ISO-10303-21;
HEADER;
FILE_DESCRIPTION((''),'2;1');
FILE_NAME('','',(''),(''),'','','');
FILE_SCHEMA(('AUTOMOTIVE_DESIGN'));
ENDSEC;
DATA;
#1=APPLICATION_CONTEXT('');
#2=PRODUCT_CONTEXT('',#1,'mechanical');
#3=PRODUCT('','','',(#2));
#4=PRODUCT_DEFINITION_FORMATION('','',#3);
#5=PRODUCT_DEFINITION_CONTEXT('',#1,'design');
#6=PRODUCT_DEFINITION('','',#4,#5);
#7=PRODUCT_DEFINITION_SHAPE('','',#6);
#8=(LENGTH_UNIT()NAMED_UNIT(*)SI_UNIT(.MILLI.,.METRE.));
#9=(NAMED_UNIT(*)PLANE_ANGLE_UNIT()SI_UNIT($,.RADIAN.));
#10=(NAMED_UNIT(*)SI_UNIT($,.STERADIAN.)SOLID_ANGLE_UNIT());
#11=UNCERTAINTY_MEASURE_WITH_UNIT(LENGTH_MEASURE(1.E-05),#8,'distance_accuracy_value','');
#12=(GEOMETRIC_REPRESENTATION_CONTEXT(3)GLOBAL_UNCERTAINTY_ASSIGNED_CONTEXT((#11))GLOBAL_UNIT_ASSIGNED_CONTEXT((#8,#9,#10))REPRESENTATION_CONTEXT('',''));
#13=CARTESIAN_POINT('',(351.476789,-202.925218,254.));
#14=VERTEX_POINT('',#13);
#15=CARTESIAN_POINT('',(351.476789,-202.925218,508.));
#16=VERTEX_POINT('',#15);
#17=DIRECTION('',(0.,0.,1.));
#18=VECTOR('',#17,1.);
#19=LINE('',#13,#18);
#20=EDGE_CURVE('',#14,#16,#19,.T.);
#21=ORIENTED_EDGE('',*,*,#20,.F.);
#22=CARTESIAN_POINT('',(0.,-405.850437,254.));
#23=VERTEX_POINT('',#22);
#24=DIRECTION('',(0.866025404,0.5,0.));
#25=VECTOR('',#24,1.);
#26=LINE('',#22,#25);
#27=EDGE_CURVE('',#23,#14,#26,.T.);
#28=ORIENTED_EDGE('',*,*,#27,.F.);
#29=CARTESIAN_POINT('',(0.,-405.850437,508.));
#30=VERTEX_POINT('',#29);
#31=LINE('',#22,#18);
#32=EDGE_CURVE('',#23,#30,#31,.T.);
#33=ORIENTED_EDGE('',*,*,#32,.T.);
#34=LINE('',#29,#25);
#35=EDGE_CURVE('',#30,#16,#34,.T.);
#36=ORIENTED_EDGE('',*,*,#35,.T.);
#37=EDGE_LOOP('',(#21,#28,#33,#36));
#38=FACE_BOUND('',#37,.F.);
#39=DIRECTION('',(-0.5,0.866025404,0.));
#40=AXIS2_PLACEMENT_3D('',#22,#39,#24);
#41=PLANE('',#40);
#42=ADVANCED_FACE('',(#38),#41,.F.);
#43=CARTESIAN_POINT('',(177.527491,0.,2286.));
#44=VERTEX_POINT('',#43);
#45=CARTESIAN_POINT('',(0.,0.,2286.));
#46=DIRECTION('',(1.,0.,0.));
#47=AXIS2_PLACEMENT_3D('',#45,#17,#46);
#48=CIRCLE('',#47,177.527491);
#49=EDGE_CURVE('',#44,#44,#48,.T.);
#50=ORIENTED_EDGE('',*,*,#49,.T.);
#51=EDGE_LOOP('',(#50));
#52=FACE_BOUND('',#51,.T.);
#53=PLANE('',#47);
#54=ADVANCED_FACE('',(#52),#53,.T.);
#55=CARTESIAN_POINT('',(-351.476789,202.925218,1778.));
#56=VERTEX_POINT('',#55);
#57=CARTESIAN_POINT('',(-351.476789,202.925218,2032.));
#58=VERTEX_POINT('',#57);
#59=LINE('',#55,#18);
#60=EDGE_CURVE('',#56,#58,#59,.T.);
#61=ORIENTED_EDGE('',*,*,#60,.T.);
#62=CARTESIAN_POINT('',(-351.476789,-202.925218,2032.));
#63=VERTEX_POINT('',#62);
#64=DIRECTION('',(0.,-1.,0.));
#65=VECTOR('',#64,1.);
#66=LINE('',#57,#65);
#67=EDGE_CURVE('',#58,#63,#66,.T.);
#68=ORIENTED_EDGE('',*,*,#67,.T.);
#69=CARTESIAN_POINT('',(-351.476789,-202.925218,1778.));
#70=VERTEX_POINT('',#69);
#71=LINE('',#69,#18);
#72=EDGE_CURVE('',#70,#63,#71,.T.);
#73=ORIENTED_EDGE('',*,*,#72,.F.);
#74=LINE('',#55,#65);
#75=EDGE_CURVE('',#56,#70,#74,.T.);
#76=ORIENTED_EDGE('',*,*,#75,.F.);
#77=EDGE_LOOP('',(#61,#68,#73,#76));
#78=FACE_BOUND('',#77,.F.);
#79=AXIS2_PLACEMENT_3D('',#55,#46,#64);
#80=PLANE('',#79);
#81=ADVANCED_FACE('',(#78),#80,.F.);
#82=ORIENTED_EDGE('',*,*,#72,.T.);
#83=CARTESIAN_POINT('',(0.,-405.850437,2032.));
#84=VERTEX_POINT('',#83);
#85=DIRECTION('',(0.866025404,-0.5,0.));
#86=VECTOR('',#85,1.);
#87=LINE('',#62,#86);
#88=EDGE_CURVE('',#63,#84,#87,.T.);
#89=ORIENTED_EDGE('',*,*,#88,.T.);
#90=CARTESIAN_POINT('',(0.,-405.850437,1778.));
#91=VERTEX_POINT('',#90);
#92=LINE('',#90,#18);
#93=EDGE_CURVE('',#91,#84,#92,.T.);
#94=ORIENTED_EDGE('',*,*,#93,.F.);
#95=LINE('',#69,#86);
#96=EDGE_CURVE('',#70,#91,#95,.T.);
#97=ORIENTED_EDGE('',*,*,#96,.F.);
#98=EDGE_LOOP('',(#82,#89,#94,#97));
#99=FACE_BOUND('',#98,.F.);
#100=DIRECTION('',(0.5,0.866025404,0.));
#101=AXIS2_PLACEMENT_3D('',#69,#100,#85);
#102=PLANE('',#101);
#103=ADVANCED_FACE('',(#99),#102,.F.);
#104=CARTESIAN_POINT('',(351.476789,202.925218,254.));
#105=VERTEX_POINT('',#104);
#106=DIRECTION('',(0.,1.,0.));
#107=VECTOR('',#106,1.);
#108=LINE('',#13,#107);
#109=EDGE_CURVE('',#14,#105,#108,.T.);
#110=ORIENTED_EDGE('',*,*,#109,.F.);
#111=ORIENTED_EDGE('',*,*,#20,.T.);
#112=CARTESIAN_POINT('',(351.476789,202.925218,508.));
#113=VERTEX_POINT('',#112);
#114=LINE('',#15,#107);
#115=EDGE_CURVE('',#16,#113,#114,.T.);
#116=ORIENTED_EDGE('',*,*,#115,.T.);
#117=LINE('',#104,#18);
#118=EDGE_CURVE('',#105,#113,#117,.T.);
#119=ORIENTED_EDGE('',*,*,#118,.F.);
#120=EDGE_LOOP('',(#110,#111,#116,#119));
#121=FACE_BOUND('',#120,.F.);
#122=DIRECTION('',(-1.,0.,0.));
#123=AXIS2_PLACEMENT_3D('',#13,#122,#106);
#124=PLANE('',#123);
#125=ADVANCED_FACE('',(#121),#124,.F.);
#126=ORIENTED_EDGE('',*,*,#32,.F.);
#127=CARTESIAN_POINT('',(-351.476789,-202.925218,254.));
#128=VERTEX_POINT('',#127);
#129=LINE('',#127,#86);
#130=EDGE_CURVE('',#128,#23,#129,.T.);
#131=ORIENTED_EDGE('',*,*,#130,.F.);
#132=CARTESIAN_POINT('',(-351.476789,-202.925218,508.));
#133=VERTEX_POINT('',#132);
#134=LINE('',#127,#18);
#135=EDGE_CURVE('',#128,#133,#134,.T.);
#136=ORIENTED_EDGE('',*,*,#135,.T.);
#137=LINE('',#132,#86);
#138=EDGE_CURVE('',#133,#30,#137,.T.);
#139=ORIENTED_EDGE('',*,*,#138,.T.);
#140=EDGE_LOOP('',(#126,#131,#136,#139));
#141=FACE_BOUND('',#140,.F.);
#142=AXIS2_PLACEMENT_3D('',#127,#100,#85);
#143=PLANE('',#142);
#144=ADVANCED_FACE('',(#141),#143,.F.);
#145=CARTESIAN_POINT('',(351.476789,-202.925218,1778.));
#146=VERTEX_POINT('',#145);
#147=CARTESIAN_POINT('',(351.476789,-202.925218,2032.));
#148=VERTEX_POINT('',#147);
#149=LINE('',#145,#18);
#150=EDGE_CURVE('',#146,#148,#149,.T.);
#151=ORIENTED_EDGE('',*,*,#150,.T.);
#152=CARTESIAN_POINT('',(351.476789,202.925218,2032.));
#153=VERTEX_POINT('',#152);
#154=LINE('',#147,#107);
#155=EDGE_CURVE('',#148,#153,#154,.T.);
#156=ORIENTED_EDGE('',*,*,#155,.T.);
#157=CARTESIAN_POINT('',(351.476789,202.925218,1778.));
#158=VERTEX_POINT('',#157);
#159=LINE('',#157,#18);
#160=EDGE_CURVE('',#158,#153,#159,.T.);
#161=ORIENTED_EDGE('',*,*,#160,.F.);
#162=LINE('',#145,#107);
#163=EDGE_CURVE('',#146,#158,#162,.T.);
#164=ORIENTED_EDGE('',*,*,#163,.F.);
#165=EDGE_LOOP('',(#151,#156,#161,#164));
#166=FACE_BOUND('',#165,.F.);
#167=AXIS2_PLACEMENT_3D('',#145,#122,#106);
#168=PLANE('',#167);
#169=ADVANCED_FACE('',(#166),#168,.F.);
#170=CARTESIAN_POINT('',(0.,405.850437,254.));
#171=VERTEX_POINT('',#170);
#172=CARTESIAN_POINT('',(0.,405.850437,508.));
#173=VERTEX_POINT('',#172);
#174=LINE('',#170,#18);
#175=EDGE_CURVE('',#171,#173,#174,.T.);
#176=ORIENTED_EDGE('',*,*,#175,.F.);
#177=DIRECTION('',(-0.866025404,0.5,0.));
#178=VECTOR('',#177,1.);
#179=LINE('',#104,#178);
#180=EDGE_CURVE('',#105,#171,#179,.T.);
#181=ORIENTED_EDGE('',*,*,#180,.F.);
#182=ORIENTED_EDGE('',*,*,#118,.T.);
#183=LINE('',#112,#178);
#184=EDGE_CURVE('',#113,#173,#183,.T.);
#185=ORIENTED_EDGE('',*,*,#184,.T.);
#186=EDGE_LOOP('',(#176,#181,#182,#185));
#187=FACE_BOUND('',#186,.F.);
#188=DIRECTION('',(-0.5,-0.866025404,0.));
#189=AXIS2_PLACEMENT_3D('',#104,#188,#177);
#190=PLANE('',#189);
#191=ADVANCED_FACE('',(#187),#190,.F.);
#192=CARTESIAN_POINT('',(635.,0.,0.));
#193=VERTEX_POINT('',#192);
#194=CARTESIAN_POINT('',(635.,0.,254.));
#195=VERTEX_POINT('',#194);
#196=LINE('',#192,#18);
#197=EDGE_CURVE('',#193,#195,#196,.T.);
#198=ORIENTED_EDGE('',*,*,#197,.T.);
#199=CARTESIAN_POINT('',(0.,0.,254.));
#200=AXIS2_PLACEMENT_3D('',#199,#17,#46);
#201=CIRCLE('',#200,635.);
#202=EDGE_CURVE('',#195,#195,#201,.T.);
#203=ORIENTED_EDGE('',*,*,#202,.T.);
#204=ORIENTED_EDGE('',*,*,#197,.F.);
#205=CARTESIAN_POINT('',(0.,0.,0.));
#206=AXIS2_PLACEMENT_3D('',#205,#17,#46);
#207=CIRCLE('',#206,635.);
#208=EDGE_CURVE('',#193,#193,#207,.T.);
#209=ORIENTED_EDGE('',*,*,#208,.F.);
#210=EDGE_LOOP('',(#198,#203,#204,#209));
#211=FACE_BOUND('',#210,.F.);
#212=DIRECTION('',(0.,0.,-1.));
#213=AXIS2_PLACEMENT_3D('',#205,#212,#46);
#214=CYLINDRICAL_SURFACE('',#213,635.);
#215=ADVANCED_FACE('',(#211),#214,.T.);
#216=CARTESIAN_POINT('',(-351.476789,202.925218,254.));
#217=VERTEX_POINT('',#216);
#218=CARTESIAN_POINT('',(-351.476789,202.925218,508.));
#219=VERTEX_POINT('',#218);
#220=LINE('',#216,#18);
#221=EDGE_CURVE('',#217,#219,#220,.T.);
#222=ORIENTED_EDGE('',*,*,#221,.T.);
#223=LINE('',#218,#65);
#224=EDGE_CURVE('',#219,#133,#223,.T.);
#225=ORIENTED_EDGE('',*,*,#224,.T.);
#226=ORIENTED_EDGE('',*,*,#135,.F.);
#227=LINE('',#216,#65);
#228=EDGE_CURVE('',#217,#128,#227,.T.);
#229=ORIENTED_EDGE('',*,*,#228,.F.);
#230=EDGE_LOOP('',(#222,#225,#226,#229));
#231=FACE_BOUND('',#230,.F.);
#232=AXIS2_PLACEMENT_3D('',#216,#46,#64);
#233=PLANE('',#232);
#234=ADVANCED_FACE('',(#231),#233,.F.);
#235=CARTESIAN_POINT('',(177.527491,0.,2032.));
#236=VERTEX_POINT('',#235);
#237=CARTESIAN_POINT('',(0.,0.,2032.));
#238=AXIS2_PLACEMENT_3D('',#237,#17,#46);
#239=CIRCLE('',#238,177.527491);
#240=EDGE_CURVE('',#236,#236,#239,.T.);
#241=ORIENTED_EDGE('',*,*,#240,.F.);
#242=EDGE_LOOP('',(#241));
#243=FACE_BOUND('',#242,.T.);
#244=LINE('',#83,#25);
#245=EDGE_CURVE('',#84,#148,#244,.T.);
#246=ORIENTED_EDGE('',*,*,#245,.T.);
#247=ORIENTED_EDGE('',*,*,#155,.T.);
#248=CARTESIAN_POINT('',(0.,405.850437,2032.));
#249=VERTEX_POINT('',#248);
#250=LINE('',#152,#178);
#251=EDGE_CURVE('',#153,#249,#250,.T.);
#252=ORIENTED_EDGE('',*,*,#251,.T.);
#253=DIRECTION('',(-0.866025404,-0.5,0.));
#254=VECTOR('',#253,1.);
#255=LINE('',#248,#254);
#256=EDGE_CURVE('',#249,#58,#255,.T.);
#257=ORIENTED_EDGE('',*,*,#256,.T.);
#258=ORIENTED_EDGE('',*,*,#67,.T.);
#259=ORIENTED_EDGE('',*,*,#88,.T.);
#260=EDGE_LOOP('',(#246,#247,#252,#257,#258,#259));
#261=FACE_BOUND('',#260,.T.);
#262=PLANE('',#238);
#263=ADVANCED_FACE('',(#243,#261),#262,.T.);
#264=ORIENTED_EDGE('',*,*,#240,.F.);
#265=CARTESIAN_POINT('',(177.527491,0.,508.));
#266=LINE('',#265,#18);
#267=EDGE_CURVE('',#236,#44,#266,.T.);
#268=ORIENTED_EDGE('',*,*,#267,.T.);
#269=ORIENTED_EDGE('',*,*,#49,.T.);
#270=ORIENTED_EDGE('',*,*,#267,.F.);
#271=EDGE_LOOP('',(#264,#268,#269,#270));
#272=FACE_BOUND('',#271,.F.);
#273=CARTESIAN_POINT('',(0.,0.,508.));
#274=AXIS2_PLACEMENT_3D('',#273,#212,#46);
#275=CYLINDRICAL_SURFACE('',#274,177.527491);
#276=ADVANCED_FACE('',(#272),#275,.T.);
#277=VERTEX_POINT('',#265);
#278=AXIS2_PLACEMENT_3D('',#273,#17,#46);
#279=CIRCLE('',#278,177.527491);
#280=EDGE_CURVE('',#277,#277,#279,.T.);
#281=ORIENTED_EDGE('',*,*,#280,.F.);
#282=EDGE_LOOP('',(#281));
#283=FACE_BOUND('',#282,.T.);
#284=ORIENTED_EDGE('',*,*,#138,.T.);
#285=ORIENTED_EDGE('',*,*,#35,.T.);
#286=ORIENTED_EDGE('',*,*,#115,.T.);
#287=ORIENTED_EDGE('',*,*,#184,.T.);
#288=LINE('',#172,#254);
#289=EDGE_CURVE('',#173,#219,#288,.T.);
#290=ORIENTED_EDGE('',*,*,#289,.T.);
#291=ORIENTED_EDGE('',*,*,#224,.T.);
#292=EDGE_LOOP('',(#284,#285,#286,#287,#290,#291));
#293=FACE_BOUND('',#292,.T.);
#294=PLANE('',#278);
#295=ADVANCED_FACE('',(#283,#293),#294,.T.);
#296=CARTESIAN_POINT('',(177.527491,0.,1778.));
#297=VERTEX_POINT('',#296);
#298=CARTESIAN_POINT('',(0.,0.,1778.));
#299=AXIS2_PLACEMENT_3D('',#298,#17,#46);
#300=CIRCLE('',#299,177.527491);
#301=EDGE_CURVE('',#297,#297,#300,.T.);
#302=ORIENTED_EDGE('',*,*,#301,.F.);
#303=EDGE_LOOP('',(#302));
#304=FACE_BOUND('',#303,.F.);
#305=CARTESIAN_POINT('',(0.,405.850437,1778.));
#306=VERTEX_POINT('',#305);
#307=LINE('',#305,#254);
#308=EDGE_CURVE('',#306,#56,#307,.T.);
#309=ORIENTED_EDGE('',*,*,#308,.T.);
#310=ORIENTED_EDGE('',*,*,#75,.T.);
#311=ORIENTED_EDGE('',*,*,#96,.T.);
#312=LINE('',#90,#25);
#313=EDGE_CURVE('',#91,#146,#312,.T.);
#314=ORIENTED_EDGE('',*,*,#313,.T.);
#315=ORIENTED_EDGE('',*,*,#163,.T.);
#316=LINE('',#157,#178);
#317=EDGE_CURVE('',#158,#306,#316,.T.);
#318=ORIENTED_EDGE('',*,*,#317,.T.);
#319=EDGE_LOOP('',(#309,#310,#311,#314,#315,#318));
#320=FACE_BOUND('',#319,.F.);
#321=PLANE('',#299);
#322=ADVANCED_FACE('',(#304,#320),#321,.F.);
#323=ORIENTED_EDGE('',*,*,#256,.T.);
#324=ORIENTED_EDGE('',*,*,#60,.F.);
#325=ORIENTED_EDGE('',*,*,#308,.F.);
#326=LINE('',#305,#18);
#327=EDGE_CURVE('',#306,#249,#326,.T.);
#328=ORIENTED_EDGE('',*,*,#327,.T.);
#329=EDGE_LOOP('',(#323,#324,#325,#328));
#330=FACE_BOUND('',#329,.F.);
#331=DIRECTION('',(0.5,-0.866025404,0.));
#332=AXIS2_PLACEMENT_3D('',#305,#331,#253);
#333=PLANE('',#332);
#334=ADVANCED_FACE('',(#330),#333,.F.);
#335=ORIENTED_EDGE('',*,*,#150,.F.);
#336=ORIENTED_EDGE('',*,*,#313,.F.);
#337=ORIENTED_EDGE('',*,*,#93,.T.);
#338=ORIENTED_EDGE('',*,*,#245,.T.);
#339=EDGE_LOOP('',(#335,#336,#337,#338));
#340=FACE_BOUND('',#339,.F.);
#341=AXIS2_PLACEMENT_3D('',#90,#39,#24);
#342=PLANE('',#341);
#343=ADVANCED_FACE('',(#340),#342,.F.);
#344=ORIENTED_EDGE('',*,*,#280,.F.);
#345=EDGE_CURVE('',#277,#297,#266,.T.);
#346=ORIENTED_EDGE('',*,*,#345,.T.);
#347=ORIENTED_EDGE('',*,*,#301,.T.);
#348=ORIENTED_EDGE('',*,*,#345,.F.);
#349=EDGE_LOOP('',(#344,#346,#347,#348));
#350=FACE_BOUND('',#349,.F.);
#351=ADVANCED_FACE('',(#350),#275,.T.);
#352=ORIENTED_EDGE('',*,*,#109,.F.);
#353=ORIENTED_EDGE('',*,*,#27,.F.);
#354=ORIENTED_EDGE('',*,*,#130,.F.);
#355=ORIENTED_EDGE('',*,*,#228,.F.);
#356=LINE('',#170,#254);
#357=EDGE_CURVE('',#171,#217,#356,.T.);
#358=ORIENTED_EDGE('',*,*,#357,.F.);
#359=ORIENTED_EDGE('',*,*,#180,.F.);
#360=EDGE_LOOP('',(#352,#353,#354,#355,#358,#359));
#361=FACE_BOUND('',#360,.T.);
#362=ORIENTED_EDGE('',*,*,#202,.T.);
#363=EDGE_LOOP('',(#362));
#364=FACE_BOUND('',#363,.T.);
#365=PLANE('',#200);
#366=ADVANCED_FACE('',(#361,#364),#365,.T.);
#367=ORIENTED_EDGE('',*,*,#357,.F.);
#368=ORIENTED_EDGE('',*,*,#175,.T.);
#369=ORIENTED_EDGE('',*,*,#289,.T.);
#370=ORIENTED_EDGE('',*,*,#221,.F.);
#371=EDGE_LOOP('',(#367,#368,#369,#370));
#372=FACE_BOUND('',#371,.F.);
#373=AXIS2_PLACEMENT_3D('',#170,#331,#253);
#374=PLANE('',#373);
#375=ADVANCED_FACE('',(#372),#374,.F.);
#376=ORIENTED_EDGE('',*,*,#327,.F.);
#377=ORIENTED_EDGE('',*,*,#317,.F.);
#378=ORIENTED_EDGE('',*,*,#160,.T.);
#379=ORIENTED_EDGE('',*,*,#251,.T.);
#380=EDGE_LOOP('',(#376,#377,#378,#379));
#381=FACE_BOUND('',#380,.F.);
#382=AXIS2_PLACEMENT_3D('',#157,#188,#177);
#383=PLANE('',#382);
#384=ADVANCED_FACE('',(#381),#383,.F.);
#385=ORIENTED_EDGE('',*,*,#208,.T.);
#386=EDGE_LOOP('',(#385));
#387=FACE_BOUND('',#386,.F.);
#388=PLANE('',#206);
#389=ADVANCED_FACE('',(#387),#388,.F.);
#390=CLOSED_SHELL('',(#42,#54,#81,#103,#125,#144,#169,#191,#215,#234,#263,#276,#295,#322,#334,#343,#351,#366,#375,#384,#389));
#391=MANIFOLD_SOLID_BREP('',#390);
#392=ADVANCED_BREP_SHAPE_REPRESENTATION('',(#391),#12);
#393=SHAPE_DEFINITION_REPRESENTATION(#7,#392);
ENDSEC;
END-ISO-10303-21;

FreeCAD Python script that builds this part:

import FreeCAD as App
import Part
import Sketcher
from FreeCAD import Vector
Q = App.Units.Quantity


def add_polygon(sketch, points):
    """Adds a closed chain of lines whose ends are joined by coincident constraints."""
    first, n = sketch.GeometryCount, len(points)
    for a, b in zip(points, points[1:] + points[:1]):
        sketch.addGeometry(Part.LineSegment(App.Vector(*a, 0), App.Vector(*b, 0)), False)
    for i in range(n):
        sketch.addConstraint(Sketcher.Constraint("Coincident", first + i, 2, first + (i + 1) % n, 1))

doc = App.newDocument("Part")
params = doc.addObject("Spreadsheet::Sheet", "Params")
for row, (alias, value) in enumerate([
    ("sketch1_diameter", "50 in"),
    ("pad1_length", "10 in"),
    ("pad2_length", "10 in"),
    ("pad3_length", "70 in"),
    ("pad4_length", "10 in"),
], start=1):
    params.set(f"A{row}", alias)
    params.set(f"B{row}", "=" + value)
    params.setAlias(f"B{row}", alias)

body = doc.addObject("PartDesign::Body", "Body")

sketch1 = doc.addObject("Sketcher::SketchObject", "Sketch")
body.addObject(sketch1)
sketch1.AttachmentSupport = (doc.XY_Plane, [""])
sketch1.MapMode = "FlatFace"
sketch1.addGeometry(Part.Circle(Vector(0, 0, 0), Vector(0, 0, 1), 635), False)
sketch1.addConstraint([
    Sketcher.Constraint("Coincident", 0, 3, -1, 1),
    Sketcher.Constraint("Diameter", 0, Q("50 in")),
])
sketch1.setExpression("Constraints[1]", "Params.sketch1_diameter")
pad1 = doc.addObject("PartDesign::Pad", "Pad")
body.addObject(pad1)
pad1.Profile = sketch1
pad1.setExpression("Length", "Params.pad1_length")

sketch2 = doc.addObject("Sketcher::SketchObject", "Sketch001")
body.addObject(sketch2)
sketch2.AttachmentSupport = (doc.XY_Plane, [""])
sketch2.MapMode = "FlatFace"
sketch2.AttachmentOffset = App.Placement(Vector(0, 0, 10 * 25.4), App.Rotation())
add_polygon(sketch2, [(351, -203), (351, 203), (0, 406), (-351, 203), (-351, -203), (0, -406)])
sketch2.addConstraint([
    Sketcher.Constraint("Vertical", 0),
    Sketcher.Constraint("Vertical", 3),
    Sketcher.Constraint("Symmetric", 0, 2, 3, 2, -1, 1),
    Sketcher.Constraint("Symmetric", 1, 2, 4, 2, -1, 1),
    Sketcher.Constraint("PointOnObject", 1, 2, -2),
    Sketcher.Constraint("Parallel", 2, 5),
    Sketcher.Constraint("Horizontal", 0, 2, 2, 2),
    Sketcher.Constraint("Angle", 1, Q("150 deg")),
    Sketcher.Constraint("DistanceY", 0, 1, 0, 2, Q("405.850437 mm")),
    Sketcher.Constraint("DistanceX", -1, 1, 0, 2, Q("351.476789 mm")),
])
pad2 = doc.addObject("PartDesign::Pad", "Pad001")
body.addObject(pad2)
pad2.Profile = sketch2
pad2.setExpression("Length", "Params.pad2_length")

sketch3 = doc.addObject("Sketcher::SketchObject", "Sketch002")
body.addObject(sketch3)
sketch3.AttachmentSupport = (doc.XY_Plane, [""])
sketch3.MapMode = "FlatFace"
sketch3.AttachmentOffset = App.Placement(Vector(0, 0, 20 * 25.4), App.Rotation())
sketch3.addGeometry(Part.Circle(Vector(0, 0, 0), Vector(0, 0, 1), 178), False)
sketch3.addConstraint([
    Sketcher.Constraint("Coincident", 0, 3, -1, 1),
    Sketcher.Constraint("Diameter", 0, Q("355.054983 mm")),
])
pad3 = doc.addObject("PartDesign::Pad", "Pad002")
body.addObject(pad3)
pad3.Profile = sketch3
pad3.setExpression("Length", "Params.pad3_length")

sketch4 = doc.addObject("Sketcher::SketchObject", "Sketch003")
body.addObject(sketch4)
sketch4.AttachmentSupport = (doc.XY_Plane, [""])
sketch4.MapMode = "FlatFace"
sketch4.AttachmentOffset = App.Placement(Vector(0, 0, 70 * 25.4), App.Rotation())
add_polygon(sketch4, [(0, -406), (351, -203), (351, 203), (0, 406), (-351, 203), (-351, -203)])
sketch4.addGeometry(Part.Circle(Vector(0, 0, 0), Vector(0, 0, 1), 178), False)
sketch4.addConstraint([
    Sketcher.Constraint("Vertical", 1),
    Sketcher.Constraint("Vertical", 4),
    Sketcher.Constraint("Coincident", 6, 3, -1, 1),
    Sketcher.Constraint("Symmetric", 0, 2, 3, 2, -1, 1),
    Sketcher.Constraint("Symmetric", 2, 2, 5, 2, -1, 1),
    Sketcher.Constraint("PointOnObject", 2, 2, -2),
    Sketcher.Constraint("Parallel", 2, 5),
    Sketcher.Constraint("Horizontal", 1, 2, 3, 2),
    Sketcher.Constraint("Angle", 0, Q("30 deg")),
    Sketcher.Constraint("Diameter", 6, Q("355.054983 mm")),
    Sketcher.Constraint("DistanceY", 1, 1, 1, 2, Q("405.850437 mm")),
    Sketcher.Constraint("DistanceX", -1, 1, 0, 2, Q("351.476789 mm")),
])
pad4 = doc.addObject("PartDesign::Pad", "Pad003")
body.addObject(pad4)
pad4.Profile = sketch4
pad4.setExpression("Length", "Params.pad4_length")

doc.recompute()
